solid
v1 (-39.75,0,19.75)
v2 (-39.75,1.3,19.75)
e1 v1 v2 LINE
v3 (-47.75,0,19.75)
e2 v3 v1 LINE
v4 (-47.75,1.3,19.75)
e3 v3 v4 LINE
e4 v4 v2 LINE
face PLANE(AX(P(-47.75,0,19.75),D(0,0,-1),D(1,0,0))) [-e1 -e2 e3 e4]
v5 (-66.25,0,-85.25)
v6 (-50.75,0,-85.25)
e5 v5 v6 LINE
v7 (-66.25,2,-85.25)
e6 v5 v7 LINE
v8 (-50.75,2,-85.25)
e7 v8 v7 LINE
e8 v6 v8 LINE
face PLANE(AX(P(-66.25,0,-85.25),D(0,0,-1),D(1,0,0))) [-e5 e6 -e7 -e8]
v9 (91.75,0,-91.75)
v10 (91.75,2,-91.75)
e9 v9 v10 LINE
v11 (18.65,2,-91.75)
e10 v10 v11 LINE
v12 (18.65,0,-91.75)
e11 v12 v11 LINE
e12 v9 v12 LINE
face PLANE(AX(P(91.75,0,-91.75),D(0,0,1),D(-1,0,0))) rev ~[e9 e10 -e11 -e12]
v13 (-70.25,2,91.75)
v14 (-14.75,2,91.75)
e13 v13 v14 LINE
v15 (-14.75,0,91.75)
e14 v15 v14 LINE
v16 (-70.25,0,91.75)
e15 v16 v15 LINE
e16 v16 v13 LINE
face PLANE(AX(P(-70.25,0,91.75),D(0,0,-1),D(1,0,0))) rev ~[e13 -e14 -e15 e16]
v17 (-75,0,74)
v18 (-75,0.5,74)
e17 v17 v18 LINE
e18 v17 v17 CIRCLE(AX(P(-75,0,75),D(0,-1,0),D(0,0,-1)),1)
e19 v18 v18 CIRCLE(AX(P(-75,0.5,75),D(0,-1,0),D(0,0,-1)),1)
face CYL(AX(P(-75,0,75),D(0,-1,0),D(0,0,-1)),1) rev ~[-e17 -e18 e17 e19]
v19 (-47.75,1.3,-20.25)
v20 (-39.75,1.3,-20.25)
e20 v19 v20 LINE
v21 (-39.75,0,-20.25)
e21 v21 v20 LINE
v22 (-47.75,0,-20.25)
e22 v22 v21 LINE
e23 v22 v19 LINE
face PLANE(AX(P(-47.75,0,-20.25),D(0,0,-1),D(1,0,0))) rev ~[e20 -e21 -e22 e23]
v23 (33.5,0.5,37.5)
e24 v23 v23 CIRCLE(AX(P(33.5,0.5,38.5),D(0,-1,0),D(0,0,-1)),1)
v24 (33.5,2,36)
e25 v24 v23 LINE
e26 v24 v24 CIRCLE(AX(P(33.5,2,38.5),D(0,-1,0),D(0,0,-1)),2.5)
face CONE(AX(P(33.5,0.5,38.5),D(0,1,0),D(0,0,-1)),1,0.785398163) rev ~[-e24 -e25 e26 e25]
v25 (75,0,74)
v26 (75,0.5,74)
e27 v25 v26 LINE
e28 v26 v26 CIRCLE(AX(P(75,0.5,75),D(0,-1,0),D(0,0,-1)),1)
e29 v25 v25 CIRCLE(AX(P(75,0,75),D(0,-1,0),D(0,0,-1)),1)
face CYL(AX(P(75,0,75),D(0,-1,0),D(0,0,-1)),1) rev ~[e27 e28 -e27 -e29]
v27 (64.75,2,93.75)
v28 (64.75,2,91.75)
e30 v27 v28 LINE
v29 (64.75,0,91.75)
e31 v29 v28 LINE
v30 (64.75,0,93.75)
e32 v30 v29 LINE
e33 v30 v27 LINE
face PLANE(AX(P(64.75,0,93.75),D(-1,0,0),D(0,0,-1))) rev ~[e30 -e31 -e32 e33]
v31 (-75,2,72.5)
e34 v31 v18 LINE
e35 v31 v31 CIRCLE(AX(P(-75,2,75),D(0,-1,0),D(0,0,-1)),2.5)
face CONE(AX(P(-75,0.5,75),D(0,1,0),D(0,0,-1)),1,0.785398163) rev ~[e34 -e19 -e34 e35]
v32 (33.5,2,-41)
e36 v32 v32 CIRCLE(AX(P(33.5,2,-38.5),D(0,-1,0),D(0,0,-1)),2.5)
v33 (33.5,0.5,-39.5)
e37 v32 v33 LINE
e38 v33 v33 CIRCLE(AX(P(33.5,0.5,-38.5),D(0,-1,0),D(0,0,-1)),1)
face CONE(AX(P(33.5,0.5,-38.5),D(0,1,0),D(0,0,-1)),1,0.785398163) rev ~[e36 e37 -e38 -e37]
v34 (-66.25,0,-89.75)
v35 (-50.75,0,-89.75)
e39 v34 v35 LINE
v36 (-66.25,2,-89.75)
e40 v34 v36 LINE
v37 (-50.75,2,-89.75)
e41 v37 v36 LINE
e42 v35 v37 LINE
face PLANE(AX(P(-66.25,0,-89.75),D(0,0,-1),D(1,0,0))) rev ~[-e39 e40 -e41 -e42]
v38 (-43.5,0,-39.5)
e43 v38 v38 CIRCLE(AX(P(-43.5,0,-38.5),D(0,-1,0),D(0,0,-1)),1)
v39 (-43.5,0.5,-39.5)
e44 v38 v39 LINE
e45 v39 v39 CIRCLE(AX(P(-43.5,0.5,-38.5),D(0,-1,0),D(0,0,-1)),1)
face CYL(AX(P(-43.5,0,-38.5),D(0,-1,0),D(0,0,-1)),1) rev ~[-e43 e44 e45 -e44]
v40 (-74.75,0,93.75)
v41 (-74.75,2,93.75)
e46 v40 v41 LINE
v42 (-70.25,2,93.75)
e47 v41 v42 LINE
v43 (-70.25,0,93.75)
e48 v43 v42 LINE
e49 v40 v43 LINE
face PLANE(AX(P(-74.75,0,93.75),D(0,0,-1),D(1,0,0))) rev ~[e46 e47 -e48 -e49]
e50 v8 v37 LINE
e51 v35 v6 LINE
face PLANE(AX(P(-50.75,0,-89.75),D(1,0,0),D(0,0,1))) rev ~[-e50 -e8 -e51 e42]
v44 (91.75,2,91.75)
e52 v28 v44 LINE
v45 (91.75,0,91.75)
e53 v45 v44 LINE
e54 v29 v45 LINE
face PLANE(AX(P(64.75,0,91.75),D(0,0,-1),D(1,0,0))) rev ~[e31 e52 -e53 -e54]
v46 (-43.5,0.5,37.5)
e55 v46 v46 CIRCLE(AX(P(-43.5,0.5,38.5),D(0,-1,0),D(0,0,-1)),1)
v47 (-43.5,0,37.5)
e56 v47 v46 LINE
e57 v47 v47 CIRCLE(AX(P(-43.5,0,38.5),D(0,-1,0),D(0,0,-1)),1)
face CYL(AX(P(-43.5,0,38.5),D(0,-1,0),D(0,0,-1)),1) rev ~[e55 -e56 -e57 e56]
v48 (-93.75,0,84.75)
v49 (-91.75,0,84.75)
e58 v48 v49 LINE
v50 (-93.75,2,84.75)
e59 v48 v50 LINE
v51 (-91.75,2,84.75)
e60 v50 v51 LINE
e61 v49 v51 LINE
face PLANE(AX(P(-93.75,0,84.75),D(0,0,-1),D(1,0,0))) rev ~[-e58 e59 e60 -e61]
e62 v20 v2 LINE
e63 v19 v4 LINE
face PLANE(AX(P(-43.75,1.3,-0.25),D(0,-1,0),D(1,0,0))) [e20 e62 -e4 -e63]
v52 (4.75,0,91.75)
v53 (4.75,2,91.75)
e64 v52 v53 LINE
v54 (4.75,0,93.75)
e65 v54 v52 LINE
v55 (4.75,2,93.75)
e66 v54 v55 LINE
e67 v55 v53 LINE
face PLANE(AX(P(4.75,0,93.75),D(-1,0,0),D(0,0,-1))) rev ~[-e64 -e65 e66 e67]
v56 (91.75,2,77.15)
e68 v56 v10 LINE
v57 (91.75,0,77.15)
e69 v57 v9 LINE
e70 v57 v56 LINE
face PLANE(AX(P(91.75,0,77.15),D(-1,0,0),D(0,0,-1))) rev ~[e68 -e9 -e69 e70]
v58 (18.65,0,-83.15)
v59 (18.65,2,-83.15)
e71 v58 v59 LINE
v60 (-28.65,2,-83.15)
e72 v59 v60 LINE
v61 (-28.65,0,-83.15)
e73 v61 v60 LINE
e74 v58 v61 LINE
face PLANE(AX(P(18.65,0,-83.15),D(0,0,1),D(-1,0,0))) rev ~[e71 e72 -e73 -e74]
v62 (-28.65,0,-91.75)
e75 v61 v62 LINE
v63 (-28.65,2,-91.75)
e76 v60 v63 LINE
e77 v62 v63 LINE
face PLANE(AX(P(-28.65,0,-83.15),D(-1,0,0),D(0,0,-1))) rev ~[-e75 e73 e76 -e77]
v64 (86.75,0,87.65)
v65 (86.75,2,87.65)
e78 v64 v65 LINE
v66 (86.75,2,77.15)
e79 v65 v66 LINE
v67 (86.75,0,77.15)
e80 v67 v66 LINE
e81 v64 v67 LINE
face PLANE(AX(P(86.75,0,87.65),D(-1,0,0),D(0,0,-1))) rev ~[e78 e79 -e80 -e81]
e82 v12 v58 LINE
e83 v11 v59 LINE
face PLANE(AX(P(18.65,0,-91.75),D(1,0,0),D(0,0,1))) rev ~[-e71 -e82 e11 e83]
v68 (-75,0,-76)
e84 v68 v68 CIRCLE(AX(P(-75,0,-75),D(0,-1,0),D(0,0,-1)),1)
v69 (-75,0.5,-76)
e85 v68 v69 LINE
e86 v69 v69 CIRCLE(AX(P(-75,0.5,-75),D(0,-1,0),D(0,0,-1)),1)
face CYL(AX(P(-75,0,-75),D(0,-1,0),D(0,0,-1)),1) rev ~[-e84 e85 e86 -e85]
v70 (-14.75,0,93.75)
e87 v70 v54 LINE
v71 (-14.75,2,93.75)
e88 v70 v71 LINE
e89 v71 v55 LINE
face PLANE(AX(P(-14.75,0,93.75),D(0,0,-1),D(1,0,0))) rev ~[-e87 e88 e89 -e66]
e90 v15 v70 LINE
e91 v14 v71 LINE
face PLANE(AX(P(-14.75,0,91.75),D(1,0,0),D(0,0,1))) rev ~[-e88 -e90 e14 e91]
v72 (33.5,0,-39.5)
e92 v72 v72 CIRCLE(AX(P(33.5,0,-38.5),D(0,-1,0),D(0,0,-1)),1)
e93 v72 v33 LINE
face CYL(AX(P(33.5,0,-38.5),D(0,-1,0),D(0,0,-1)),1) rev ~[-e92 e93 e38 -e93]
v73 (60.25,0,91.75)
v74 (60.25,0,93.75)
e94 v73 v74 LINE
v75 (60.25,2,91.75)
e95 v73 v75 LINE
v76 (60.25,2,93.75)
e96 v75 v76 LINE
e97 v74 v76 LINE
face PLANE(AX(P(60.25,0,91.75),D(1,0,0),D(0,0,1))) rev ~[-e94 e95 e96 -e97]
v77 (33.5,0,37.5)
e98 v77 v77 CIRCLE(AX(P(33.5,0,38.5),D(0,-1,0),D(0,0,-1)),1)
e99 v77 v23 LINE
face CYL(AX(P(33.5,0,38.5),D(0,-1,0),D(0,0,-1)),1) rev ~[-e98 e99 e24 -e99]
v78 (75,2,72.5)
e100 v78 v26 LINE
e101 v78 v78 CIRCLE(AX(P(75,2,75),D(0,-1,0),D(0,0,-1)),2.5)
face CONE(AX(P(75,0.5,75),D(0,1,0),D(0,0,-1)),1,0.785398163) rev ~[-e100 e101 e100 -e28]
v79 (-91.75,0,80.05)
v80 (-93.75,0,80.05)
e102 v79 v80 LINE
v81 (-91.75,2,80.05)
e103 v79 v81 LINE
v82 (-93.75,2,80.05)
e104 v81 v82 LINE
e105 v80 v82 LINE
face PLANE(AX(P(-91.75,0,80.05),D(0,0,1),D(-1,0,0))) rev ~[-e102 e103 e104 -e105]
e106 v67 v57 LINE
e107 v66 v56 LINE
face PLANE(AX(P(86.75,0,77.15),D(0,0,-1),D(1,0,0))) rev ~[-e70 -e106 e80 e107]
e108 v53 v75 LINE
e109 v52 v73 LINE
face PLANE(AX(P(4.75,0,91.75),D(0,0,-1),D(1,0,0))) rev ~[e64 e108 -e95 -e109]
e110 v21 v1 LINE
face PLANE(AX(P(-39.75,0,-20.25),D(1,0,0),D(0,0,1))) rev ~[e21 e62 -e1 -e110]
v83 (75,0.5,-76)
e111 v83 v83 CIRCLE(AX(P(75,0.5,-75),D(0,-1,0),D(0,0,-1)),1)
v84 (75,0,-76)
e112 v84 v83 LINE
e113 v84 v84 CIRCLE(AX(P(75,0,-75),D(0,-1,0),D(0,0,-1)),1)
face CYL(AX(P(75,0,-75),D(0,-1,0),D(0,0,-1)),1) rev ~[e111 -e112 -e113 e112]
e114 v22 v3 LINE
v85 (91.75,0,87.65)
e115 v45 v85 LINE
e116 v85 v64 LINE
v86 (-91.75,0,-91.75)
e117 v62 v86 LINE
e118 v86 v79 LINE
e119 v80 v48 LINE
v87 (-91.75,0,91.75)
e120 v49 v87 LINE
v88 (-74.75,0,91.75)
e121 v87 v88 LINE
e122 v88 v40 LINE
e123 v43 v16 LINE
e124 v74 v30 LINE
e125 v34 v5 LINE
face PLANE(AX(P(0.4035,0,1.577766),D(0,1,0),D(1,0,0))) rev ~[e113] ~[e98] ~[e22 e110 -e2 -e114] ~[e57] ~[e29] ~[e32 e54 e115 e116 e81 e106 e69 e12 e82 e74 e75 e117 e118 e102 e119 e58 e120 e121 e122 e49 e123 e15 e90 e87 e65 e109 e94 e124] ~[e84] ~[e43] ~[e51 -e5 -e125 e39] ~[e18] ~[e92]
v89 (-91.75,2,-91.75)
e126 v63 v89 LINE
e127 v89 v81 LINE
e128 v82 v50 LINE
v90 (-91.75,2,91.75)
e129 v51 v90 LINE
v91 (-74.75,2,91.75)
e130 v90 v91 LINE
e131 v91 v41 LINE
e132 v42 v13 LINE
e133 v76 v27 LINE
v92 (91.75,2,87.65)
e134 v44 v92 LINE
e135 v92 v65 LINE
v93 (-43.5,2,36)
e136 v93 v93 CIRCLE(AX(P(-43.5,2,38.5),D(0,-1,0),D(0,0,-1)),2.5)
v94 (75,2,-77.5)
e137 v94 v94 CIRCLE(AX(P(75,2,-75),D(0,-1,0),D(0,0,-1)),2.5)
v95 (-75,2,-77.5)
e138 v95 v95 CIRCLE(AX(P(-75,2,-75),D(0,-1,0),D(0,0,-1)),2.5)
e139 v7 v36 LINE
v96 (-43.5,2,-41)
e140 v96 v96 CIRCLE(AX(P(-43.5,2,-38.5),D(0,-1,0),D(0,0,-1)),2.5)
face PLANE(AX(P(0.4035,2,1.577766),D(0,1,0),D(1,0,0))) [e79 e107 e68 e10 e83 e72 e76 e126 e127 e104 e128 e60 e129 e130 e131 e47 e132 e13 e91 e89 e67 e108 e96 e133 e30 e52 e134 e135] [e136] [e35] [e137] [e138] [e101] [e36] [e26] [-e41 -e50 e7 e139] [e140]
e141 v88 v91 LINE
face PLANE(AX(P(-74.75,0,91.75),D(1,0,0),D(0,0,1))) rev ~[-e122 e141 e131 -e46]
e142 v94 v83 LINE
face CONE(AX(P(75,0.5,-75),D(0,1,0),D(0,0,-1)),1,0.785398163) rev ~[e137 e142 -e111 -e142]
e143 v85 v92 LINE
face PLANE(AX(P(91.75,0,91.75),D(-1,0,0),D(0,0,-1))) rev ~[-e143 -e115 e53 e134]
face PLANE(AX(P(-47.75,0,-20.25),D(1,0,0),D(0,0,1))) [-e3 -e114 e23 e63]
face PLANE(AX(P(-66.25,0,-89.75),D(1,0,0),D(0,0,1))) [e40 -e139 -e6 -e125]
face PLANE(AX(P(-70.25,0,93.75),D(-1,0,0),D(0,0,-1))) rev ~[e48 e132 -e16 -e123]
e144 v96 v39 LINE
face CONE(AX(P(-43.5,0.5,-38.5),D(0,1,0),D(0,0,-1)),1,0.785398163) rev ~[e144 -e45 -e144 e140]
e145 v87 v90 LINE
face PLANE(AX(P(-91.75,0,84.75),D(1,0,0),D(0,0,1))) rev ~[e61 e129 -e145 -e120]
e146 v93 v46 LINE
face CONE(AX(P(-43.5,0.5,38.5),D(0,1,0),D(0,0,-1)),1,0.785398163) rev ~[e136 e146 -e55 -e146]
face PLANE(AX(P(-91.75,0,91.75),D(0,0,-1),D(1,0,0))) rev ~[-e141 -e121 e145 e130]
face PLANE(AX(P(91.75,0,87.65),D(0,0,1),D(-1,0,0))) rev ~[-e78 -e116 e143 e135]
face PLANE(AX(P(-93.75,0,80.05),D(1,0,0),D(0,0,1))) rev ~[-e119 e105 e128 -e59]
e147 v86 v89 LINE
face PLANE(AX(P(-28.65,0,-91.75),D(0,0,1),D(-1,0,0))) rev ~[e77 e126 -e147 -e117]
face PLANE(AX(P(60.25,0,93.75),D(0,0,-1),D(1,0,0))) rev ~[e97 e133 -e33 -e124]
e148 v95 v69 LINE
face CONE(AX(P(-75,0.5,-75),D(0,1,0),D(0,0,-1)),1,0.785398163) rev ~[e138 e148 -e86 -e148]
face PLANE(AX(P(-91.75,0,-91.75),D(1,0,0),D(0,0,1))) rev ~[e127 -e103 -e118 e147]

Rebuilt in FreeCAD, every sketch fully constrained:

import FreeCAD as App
import Part
import Sketcher
Q = App.Units.Quantity


def edges_at(feature, points):
    """Names of the edges that pass closest to the given points."""
    edges = feature.Shape.Edges
    near = lambda p: min(range(len(edges)), key=lambda i: edges[i].distToShape(Part.Vertex(*p))[0])
    return sorted({f"Edge{near(p) + 1}" for p in points})


def add_polygon(sketch, points):
    """Adds a closed chain of lines whose ends are joined by coincident constraints."""
    first, n = sketch.GeometryCount, len(points)
    for a, b in zip(points, points[1:] + points[:1]):
        sketch.addGeometry(Part.LineSegment(App.Vector(*a, 0), App.Vector(*b, 0)), False)
    for i in range(n):
        sketch.addConstraint(Sketcher.Constraint("Coincident", first + i, 2, first + (i + 1) % n, 1))

doc = App.newDocument("Part")
body = doc.addObject("PartDesign::Body", "Body")

# Sketch on XZ plane
sketch1 = body.newObject("Sketcher::SketchObject", "Sketch")
sketch1.AttachmentSupport = (doc.getObject("XZ_Plane"), [""])
sketch1.MapMode = "FlatFace"
add_polygon(sketch1, [(-74.8, 93.8), (-70.2, 93.8), (-70.2, 91.8), (-14.8, 91.8), (-14.8, 93.8), (4.8, 93.8), (4.8, 91.8), (60.2, 91.8), (60.2, 93.8), (64.8, 93.8), (64.8, 91.8), (91.8, 91.8), (91.8, 87.7), (86.8, 87.7), (86.8, 77.2), (91.8, 77.2), (91.8, -91.8), (18.6, -91.8), (18.6, -83.2), (-28.6, -83.2), (-28.6, -91.8), (-91.8, -91.8), (-91.8, 80), (-93.8, 80), (-93.8, 84.8), (-91.8, 84.8), (-91.8, 91.8), (-74.8, 91.8)])  # lines 0-27
sketch1.addConstraint(Sketcher.Constraint("Horizontal", 0))
sketch1.addConstraint(Sketcher.Constraint("Vertical", 1))
sketch1.addConstraint(Sketcher.Constraint("Horizontal", 2))
sketch1.addConstraint(Sketcher.Constraint("Vertical", 3))
sketch1.addConstraint(Sketcher.Constraint("Horizontal", 4))
sketch1.addConstraint(Sketcher.Constraint("Vertical", 5))
sketch1.addConstraint(Sketcher.Constraint("Horizontal", 6))
sketch1.addConstraint(Sketcher.Constraint("Vertical", 7))
sketch1.addConstraint(Sketcher.Constraint("Horizontal", 8))
sketch1.addConstraint(Sketcher.Constraint("Vertical", 9))
sketch1.addConstraint(Sketcher.Constraint("Horizontal", 10))
sketch1.addConstraint(Sketcher.Constraint("Vertical", 11))
sketch1.addConstraint(Sketcher.Constraint("Horizontal", 12))
sketch1.addConstraint(Sketcher.Constraint("Vertical", 13))
sketch1.addConstraint(Sketcher.Constraint("Horizontal", 14))
sketch1.addConstraint(Sketcher.Constraint("Vertical", 15))
sketch1.addConstraint(Sketcher.Constraint("Horizontal", 16))
sketch1.addConstraint(Sketcher.Constraint("Vertical", 17))
sketch1.addConstraint(Sketcher.Constraint("Horizontal", 18))
sketch1.addConstraint(Sketcher.Constraint("Vertical", 19))
sketch1.addConstraint(Sketcher.Constraint("Horizontal", 20))
sketch1.addConstraint(Sketcher.Constraint("Vertical", 21))
sketch1.addConstraint(Sketcher.Constraint("Horizontal", 22))
sketch1.addConstraint(Sketcher.Constraint("Vertical", 23))
sketch1.addConstraint(Sketcher.Constraint("Horizontal", 24))
sketch1.addConstraint(Sketcher.Constraint("Vertical", 25))
sketch1.addConstraint(Sketcher.Constraint("Horizontal", 26))
sketch1.addConstraint(Sketcher.Constraint("Vertical", 27))
sketch1.addConstraint(Sketcher.Constraint("Symmetric", 10, 2, 20, 2, -1, 1))
sketch1.addConstraint(Sketcher.Constraint("Symmetric", 15, 2, 25, 2, -1, 1))
sketch1.addConstraint(Sketcher.Constraint("Symmetric", 15, 2, 20, 2, -2))
sketch1.addConstraint(Sketcher.Constraint("Horizontal", 0, 2, 3, 2))
sketch1.addConstraint(Sketcher.Constraint("Horizontal", 2, 2, 5, 2))
sketch1.addConstraint(Sketcher.Constraint("Horizontal", 4, 2, 7, 2))
sketch1.addConstraint(Sketcher.Constraint("Horizontal", 6, 2, 9, 2))
sketch1.addConstraint(Sketcher.Constraint("Equal", 2, 6))
sketch1.addConstraint(Sketcher.Constraint("Equal", 0, 8))
sketch1.addConstraint(Sketcher.Constraint("Equal", 24, 1))
sketch1.addConstraint(Sketcher.Constraint("DistanceX", 10, 1, 10, 2, Q("27 mm")))
sketch1.addConstraint(Sketcher.Constraint("DistanceX", 12, 2, 12, 1, Q("5 mm")))
sketch1.addConstraint(Sketcher.Constraint("DistanceX", 22, 2, 22, 1, Q("2 mm")))
sketch1.addConstraint(Sketcher.Constraint("DistanceX", 26, 1, 26, 2, Q("17 mm")))
sketch1.addConstraint(Sketcher.Constraint("DistanceY", 25, 1, 25, 2, Q("7 mm")))
sketch1.addConstraint(Sketcher.Constraint("DistanceX", 0, 1, 0, 2, Q("4.5 mm")))
sketch1.addConstraint(Sketcher.Constraint("DistanceX", 2, 1, 2, 2, Q("55.5 mm")))
sketch1.addConstraint(Sketcher.Constraint("DistanceX", 4, 1, 4, 2, Q("19.5 mm")))
sketch1.addConstraint(Sketcher.Constraint("DistanceX", 16, 2, 16, 1, Q("73.1 mm")))
sketch1.addConstraint(Sketcher.Constraint("DistanceX", 18, 2, 18, 1, Q("47.3 mm")))
sketch1.addConstraint(Sketcher.Constraint("DistanceY", 11, 2, 11, 1, Q("4.1 mm")))
sketch1.addConstraint(Sketcher.Constraint("DistanceY", 13, 2, 13, 1, Q("10.5 mm")))
sketch1.addConstraint(Sketcher.Constraint("DistanceY", 15, 2, 15, 1, Q("168.9 mm")))
sketch1.addConstraint(Sketcher.Constraint("DistanceY", 17, 1, 17, 2, Q("8.6 mm")))
sketch1.addConstraint(Sketcher.Constraint("DistanceY", 21, 1, 21, 2, Q("171.8 mm")))
pad1 = body.newObject("PartDesign::Pad", "Pad")
pad1.Profile = sketch1
pad1.Length = 2
pad1.Reversed = True

# Sketch on XZ plane
sketch2 = body.newObject("Sketcher::SketchObject", "Sketch001")
sketch2.AttachmentSupport = (doc.getObject("XZ_Plane"), [""])
sketch2.MapMode = "FlatFace"
sketch2.addGeometry(Part.Circle(App.Vector(75, -75, 0), App.Vector(0, 0, 1), 1), False)
sketch2.addGeometry(Part.Circle(App.Vector(-75, -75, 0), App.Vector(0, 0, 1), 1), False)
sketch2.addGeometry(Part.Circle(App.Vector(-75, 75, 0), App.Vector(0, 0, 1), 1), False)
sketch2.addGeometry(Part.Circle(App.Vector(75, 75, 0), App.Vector(0, 0, 1), 1), False)
sketch2.addGeometry(Part.Circle(App.Vector(33.5, 38.5, 0), App.Vector(0, 0, 1), 1), False)
sketch2.addGeometry(Part.Circle(App.Vector(-43.5, 38.5, 0), App.Vector(0, 0, 1), 1), False)
sketch2.addGeometry(Part.Circle(App.Vector(-43.5, -38.5, 0), App.Vector(0, 0, 1), 1), False)
sketch2.addGeometry(Part.Circle(App.Vector(33.5, -38.5, 0), App.Vector(0, 0, 1), 1), False)
sketch2.addConstraint(Sketcher.Constraint("Equal", 0, 1))
sketch2.addConstraint(Sketcher.Constraint("Equal", 1, 2))
sketch2.addConstraint(Sketcher.Constraint("Equal", 2, 3))
sketch2.addConstraint(Sketcher.Constraint("Equal", 3, 4))
sketch2.addConstraint(Sketcher.Constraint("Equal", 4, 5))
sketch2.addConstraint(Sketcher.Constraint("Equal", 5, 6))
sketch2.addConstraint(Sketcher.Constraint("Equal", 6, 7))
sketch2.addConstraint(Sketcher.Constraint("Symmetric", 0, 3, 2, 3, -1, 1))
sketch2.addConstraint(Sketcher.Constraint("Symmetric", 1, 3, 3, 3, -1, 1))
sketch2.addConstraint(Sketcher.Constraint("Symmetric", 0, 3, 1, 3, -2))
sketch2.addConstraint(Sketcher.Constraint("Symmetric", 5, 3, 6, 3, -1))
sketch2.addConstraint(Sketcher.Constraint("Symmetric", 4, 3, 7, 3, -1))
sketch2.addConstraint(Sketcher.Constraint("Horizontal", 4, 3, 5, 3))
sketch2.addConstraint(Sketcher.Constraint("Diameter", 0, Q("2 mm")))
sketch2.addConstraint(Sketcher.Constraint("DistanceX", -1, 1, 0, 3, Q("75 mm")))
sketch2.addConstraint(Sketcher.Constraint("DistanceY", 0, 3, -1, 1, Q("75 mm")))
sketch2.addConstraint(Sketcher.Constraint("DistanceX", 5, 3, 4, 3, Q("77 mm")))
sketch2.addConstraint(Sketcher.Constraint("DistanceY", 6, 3, 5, 3, Q("77 mm")))
sketch2.addConstraint(Sketcher.Constraint("DistanceX", -1, 1, 4, 3, Q("33.5 mm")))
pocket1 = body.newObject("PartDesign::Pocket", "Pocket")
pocket1.Profile = sketch2
pocket1.Type = "ThroughAll"
doc.recompute()

chamfer = body.newObject("PartDesign::Chamfer", "Chamfer")
chamfer.Base = (pocket1, edges_at(pocket1, [
    (-75, 2, -74),
    (-75, 2, 76),
    (75, 2, 76),
    (33.5, 2, 39.5),
    (-43.5, 2, 39.5),
    (-43.5, 2, -37.5),
    (33.5, 2, -37.5),
    (75, 2, -74),
]))
chamfer.Size = 1.5

# Sketch on XZ plane
sketch3 = body.newObject("Sketcher::SketchObject", "Sketch002")
sketch3.AttachmentSupport = (doc.getObject("XZ_Plane"), [""])
sketch3.MapMode = "FlatFace"
add_polygon(sketch3, [(-66.2, -85.2), (-66.2, -89.8), (-50.8, -89.8), (-50.8, -85.2)])  # lines 0-3
sketch3.addConstraint(Sketcher.Constraint("Vertical", 0))
sketch3.addConstraint(Sketcher.Constraint("Horizontal", 1))
sketch3.addConstraint(Sketcher.Constraint("Vertical", 2))
sketch3.addConstraint(Sketcher.Constraint("Horizontal", 3))
sketch3.addConstraint(Sketcher.Constraint("DistanceX", 1, 1, 1, 2, Q("15.5 mm")))
sketch3.addConstraint(Sketcher.Constraint("DistanceY", 0, 2, 0, 1, Q("4.5 mm")))
sketch3.addConstraint(Sketcher.Constraint("DistanceX", 0, 2, -1, 1, Q("66.25 mm")))
sketch3.addConstraint(Sketcher.Constraint("DistanceY", 0, 2, -1, 1, Q("89.75 mm")))
pocket2 = body.newObject("PartDesign::Pocket", "Pocket001")
pocket2.Profile = sketch3
pocket2.Type = "ThroughAll"

# Sketch on XZ plane
sketch4 = body.newObject("Sketcher::SketchObject", "Sketch003")
sketch4.AttachmentSupport = (doc.getObject("XZ_Plane"), [""])
sketch4.MapMode = "FlatFace"
add_polygon(sketch4, [(-48, 20), (-48, -20), (-40, -20), (-40, 20)])  # lines 0-3
sketch4.addConstraint(Sketcher.Constraint("Vertical", 0))
sketch4.addConstraint(Sketcher.Constraint("Horizontal", 1))
sketch4.addConstraint(Sketcher.Constraint("Vertical", 2))
sketch4.addConstraint(Sketcher.Constraint("Horizontal", 3))
sketch4.addConstraint(Sketcher.Constraint("DistanceX", 1, 1, 1, 2, Q("8 mm")))
sketch4.addConstraint(Sketcher.Constraint("DistanceY", 0, 2, 0, 1, Q("40 mm")))
sketch4.addConstraint(Sketcher.Constraint("DistanceX", 0, 2, -1, 1, Q("47.75 mm")))
sketch4.addConstraint(Sketcher.Constraint("DistanceY", 0, 2, -1, 1, Q("20.25 mm")))
pocket3 = body.newObject("PartDesign::Pocket", "Pocket002")
pocket3.Profile = sketch4
pocket3.Length = 1.3

doc.recompute()
